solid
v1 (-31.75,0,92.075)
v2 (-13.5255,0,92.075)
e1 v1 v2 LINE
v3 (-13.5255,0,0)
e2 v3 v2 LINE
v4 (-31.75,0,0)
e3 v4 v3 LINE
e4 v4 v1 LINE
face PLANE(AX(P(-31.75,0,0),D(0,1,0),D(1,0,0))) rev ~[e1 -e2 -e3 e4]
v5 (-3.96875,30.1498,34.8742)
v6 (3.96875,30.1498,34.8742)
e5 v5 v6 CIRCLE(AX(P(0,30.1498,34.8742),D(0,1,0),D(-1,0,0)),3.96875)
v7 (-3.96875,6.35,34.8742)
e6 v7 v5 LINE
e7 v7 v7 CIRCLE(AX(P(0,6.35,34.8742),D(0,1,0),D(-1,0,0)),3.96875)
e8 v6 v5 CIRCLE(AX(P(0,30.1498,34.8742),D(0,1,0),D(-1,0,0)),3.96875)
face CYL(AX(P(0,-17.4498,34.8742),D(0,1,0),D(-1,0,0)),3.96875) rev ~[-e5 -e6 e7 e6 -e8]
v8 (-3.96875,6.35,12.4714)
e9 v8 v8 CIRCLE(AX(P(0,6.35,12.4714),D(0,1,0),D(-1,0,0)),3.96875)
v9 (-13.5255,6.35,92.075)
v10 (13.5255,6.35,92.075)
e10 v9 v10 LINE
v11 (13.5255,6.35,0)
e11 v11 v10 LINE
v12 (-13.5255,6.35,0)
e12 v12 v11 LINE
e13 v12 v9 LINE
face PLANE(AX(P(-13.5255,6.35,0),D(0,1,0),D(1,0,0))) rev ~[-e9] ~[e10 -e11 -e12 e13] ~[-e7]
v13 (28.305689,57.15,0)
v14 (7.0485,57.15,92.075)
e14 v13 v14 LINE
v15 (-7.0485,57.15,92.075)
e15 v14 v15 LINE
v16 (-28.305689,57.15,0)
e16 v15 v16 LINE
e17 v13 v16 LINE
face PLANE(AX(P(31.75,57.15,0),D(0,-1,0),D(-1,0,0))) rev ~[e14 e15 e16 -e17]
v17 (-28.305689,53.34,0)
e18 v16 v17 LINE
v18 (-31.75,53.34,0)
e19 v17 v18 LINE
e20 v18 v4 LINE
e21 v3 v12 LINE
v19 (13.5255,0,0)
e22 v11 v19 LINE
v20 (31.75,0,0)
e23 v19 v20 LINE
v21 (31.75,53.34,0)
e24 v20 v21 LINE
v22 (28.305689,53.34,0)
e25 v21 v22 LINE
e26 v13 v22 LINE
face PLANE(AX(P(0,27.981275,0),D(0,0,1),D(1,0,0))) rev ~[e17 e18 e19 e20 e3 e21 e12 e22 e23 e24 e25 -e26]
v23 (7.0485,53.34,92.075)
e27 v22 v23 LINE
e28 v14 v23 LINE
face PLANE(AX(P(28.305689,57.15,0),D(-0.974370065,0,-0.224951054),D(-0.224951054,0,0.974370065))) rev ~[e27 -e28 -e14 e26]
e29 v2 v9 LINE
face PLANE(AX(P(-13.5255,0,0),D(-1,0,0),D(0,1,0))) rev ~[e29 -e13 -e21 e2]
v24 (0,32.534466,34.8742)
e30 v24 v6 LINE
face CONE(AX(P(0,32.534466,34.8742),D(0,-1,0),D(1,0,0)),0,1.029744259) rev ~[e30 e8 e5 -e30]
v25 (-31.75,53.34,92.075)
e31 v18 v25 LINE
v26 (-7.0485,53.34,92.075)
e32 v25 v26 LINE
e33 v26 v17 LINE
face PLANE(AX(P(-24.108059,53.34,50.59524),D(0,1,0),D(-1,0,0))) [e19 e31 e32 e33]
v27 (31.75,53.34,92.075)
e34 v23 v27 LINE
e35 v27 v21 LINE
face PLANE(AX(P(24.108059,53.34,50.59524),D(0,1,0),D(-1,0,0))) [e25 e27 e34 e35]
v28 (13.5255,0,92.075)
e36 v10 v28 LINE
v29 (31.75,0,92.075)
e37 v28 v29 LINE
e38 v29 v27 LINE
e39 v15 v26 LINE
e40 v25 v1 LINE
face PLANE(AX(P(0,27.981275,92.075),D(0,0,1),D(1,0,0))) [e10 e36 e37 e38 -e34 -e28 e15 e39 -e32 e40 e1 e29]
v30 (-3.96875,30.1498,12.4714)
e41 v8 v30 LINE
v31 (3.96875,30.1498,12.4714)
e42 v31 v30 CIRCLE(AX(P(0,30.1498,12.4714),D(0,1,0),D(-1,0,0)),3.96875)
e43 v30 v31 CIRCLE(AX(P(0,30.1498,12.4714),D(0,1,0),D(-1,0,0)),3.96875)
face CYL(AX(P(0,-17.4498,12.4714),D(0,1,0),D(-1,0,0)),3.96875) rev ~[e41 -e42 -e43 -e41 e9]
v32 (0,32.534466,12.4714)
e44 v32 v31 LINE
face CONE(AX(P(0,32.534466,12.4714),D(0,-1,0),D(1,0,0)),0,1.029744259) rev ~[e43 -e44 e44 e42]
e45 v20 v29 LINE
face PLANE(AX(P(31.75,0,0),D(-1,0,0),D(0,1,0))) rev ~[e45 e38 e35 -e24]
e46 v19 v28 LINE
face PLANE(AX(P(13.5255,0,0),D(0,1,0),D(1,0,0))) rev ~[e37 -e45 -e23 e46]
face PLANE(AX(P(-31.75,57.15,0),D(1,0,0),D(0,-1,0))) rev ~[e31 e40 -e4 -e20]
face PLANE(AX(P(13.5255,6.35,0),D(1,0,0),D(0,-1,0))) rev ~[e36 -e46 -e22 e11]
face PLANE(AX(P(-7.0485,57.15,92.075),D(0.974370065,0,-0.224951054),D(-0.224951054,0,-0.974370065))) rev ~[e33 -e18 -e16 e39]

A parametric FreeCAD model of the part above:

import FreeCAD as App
import Part
import Sketcher

V = App.Vector
Q = App.Units.Quantity


def add_polygon(sketch, points):
    """Adds a closed chain of lines whose ends are joined by coincident constraints."""
    first, n = sketch.GeometryCount, len(points)
    for a, b in zip(points, points[1:] + points[:1]):
        sketch.addGeometry(Part.LineSegment(App.Vector(*a, 0), App.Vector(*b, 0)), False)
    for i in range(n):
        sketch.addConstraint(Sketcher.Constraint("Coincident", first + i, 2, first + (i + 1) % n, 1))

doc = App.newDocument("Part")
body = doc.addObject("PartDesign::Body", "Body")

# Sketch on XY plane
sketch1 = body.newObject("Sketcher::SketchObject", "Sketch")
sketch1.AttachmentSupport = (doc.getObject("XY_Plane"), [""])
sketch1.MapMode = "FlatFace"
add_polygon(sketch1, [(-32, 57), (-32, 0), (-14, 0), (-14, 6), (14, 6), (14, 0), (32, 0), (32, 57)])  # lines 0-7
sketch1.addConstraint([
    Sketcher.Constraint("Vertical", 0),
    Sketcher.Constraint("Horizontal", 1),
    Sketcher.Constraint("Vertical", 2),
    Sketcher.Constraint("Horizontal", 3),
    Sketcher.Constraint("Vertical", 4),
    Sketcher.Constraint("Horizontal", 5),
    Sketcher.Constraint("Vertical", 6),
    Sketcher.Constraint("Horizontal", 7),
    Sketcher.Constraint("Symmetric", 1, 2, 4, 2, -1, 1),
    Sketcher.Constraint("Symmetric", 0, 2, 5, 2, -2),
    Sketcher.Constraint("DistanceX", 7, 2, 7, 1, Q("2.5 in")),
    Sketcher.Constraint("DistanceY", 3, 2, 6, 2, Q("2 in")),
    Sketcher.Constraint("DistanceY", 0, 2, 0, 1, Q("2.25 in")),
    Sketcher.Constraint("DistanceX", 3, 1, 3, 2, Q("1.065 in")),
])
pad1 = body.newObject("PartDesign::Pad", "Pad")
pad1.Profile = sketch1
pad1.Length = Q("3.625 in")

# Sketch on XZ plane
sketch2 = body.newObject("Sketcher::SketchObject", "Sketch001")
sketch2.AttachmentSupport = (doc.getObject("XZ_Plane"), [""])
sketch2.MapMode = "FlatFace"
sketch2.AttachmentOffset = App.Placement(V(0, 0, -0.25 * 25.4), App.Rotation())
sketch2.addGeometry([
    Part.Circle(V(0, 34.9, 0), V(0, 0, 1), 4),
    Part.Circle(V(0, 12.5, 0), V(0, 0, 1), 4),
], False)
sketch2.addConstraint([
    Sketcher.Constraint("Equal", 0, 1),
    Sketcher.Constraint("PointOnObject", 0, 3, -2),
    Sketcher.Constraint("PointOnObject", 1, 3, -2),
    Sketcher.Constraint("Diameter", 0, Q("0.3125 in")),
    Sketcher.Constraint("DistanceY", -1, 1, 0, 3, Q("1.373 in")),
    Sketcher.Constraint("DistanceY", -1, 1, 1, 3, Q("0.491 in")),
])
doc.recompute()
hole = body.newObject("PartDesign::Hole", "Hole")
hole.Profile = sketch2
hole.ThreadType = "None"
hole.Diameter = Q("0.3125 in")
hole.DepthType = "Dimension"
hole.Depth = Q("0.937 in")
hole.DrillPoint = "Angled"
hole.DrillPointAngle = 118

# Sketch on XZ plane
sketch3 = body.newObject("Sketcher::SketchObject", "Sketch002")
sketch3.AttachmentSupport = (doc.getObject("XZ_Plane"), [""])
sketch3.MapMode = "FlatFace"
sketch3.AttachmentOffset = App.Placement(V(0, 0, -2.25 * 25.4), App.Rotation())
add_polygon(sketch3, [(31.8, 0), (28.3, 0), (7, 92.1), (31.8, 92.1)])  # lines 0-3
add_polygon(sketch3, [(-7, 92.1), (-28.3, 0), (-31.8, 0), (-31.8, 92.1)])  # lines 4-7
sketch3.addConstraint([
    Sketcher.Constraint("Horizontal", 0),
    Sketcher.Constraint("Horizontal", 2),
    Sketcher.Constraint("Vertical", 3),
    Sketcher.Constraint("Horizontal", 5),
    Sketcher.Constraint("Vertical", 6),
    Sketcher.Constraint("Horizontal", 7),
    Sketcher.Constraint("Symmetric", 0, 2, 4, 2, -1, 1),
    Sketcher.Constraint("Symmetric", 3, 2, 5, 2, -2),
    Sketcher.Constraint("Symmetric", 1, 2, 7, 2, -2),
    Sketcher.Constraint("Angle", 1, Q("103 deg")),
    Sketcher.Constraint("DistanceX", 5, 2, 3, 2, Q("2.5 in")),
    Sketcher.Constraint("DistanceY", 3, 2, 3, 1, Q("3.625 in")),
    Sketcher.Constraint("DistanceX", 2, 1, 2, 2, Q("0.9725 in")),
])
pocket1 = body.newObject("PartDesign::Pocket", "Pocket")
pocket1.Profile = sketch3
pocket1.Length = Q("0.15 in")
pocket1.Reversed = True

doc.recompute()
